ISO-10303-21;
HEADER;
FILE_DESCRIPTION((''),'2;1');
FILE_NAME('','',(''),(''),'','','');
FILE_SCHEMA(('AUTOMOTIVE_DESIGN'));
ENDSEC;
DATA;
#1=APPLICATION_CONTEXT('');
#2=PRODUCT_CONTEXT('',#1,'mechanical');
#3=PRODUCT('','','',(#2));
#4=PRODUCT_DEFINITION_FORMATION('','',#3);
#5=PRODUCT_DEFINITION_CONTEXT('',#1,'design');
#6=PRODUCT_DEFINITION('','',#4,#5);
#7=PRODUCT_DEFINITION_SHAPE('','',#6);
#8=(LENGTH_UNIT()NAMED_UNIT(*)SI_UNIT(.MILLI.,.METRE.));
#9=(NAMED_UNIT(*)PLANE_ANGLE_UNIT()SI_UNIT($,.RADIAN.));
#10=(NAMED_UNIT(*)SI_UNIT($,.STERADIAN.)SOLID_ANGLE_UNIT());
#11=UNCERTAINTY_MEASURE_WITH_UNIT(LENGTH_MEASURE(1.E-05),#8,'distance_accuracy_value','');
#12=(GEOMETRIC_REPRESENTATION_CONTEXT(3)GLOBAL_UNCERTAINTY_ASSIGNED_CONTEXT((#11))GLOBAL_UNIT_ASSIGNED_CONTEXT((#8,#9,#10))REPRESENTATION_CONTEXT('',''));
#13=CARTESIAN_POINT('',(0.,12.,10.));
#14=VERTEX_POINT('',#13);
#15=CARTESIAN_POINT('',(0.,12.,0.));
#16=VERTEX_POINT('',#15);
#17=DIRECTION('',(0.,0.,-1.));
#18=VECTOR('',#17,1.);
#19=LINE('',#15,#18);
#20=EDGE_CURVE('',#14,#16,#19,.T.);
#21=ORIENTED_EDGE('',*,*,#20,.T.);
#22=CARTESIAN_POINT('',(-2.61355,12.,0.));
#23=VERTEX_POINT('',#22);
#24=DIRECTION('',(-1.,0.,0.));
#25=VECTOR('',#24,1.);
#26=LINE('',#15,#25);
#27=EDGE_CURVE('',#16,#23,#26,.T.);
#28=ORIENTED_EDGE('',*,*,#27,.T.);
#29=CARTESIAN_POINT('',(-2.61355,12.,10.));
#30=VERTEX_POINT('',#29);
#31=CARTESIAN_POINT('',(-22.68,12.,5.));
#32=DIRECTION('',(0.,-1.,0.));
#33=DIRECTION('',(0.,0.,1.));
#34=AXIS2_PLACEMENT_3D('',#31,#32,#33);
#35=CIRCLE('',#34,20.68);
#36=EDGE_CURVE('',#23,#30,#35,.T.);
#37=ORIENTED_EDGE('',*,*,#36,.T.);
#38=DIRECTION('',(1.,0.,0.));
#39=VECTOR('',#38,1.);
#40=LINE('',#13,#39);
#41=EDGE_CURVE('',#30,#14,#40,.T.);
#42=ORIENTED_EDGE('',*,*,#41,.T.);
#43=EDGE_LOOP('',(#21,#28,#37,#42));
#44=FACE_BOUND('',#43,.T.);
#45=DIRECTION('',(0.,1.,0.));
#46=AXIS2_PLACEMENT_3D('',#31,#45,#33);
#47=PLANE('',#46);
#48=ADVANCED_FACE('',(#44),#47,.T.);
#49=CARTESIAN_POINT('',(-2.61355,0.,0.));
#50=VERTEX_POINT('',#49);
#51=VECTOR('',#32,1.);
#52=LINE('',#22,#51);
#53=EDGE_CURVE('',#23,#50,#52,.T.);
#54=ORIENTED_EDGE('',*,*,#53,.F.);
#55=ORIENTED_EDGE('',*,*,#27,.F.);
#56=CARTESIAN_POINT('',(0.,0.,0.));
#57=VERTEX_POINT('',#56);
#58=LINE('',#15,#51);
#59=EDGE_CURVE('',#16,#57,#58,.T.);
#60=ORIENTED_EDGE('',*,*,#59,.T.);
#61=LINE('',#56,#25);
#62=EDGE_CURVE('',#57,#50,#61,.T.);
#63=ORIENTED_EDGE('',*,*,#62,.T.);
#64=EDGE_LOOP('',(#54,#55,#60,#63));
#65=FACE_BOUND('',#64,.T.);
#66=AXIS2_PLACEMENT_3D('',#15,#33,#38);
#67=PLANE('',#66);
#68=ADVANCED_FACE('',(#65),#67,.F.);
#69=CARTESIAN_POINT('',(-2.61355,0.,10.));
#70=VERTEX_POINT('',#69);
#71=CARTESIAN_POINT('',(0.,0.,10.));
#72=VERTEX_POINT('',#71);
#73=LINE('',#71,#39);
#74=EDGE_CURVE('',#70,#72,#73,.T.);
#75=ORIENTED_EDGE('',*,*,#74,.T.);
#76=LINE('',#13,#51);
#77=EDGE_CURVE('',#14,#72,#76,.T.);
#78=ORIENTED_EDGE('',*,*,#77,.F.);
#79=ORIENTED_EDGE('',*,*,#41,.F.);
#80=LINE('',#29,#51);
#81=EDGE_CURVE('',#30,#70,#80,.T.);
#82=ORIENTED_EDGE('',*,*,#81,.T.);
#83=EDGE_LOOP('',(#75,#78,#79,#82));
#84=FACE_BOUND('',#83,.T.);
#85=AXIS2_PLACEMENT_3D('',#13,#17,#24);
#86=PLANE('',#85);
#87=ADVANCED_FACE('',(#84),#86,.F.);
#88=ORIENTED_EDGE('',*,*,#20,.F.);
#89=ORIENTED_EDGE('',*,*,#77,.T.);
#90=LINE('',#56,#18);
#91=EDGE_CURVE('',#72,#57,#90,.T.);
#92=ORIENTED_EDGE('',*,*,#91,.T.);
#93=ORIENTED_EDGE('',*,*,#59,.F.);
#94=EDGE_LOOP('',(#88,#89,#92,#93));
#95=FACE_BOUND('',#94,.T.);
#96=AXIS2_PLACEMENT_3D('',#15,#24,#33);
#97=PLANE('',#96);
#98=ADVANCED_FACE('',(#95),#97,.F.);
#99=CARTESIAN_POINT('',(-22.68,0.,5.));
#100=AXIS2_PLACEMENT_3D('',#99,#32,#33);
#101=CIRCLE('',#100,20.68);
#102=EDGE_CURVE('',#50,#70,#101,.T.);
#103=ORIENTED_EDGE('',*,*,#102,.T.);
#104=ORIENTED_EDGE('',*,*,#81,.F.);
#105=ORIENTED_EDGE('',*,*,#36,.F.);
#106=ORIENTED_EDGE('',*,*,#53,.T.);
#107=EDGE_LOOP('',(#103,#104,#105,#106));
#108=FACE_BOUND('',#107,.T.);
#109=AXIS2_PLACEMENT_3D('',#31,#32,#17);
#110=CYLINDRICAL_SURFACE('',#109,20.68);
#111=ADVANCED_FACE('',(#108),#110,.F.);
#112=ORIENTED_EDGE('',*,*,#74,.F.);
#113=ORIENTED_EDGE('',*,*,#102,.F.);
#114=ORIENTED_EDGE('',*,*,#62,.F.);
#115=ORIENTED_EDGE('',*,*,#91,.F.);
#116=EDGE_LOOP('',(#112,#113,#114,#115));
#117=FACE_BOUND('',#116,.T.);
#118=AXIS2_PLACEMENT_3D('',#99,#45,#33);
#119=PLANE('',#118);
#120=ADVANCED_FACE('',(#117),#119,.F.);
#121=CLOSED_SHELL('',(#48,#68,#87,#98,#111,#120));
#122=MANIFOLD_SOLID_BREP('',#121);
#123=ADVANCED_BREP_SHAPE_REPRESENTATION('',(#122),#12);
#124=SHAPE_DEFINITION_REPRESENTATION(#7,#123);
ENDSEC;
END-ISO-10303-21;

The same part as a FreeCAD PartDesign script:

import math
import FreeCAD as App
import Part
import Sketcher

doc = App.newDocument("Part")
body = doc.addObject("PartDesign::Body", "Body")

# Sketch on XZ plane
sketch1 = body.newObject("Sketcher::SketchObject", "Sketch")
sketch1.AttachmentSupport = (doc.getObject("XZ_Plane"), [""])
sketch1.MapMode = "FlatFace"
sketch1.addGeometry([
    Part.LineSegment(App.Vector(0, 10, 0), App.Vector(0, 0, 0)),
    Part.LineSegment(App.Vector(0, 0, 0), App.Vector(-2.6, 0, 0)),
    Part.ArcOfCircle(Part.Circle(App.Vector(-22.7, 5, 0), App.Vector(0, 0, 1), 20.7), math.radians(-14), math.radians(14)),
    Part.LineSegment(App.Vector(-2.6, 10, 0), App.Vector(0, 10, 0)),
], False)
sketch1.addConstraint([
    Sketcher.Constraint("Coincident", 0, 2, 1, 1),
    Sketcher.Constraint("Coincident", 1, 2, 2, 1),
    Sketcher.Constraint("Coincident", 2, 2, 3, 1),
    Sketcher.Constraint("Coincident", 3, 2, 0, 1),
    Sketcher.Constraint("Vertical", 0),
    Sketcher.Constraint("Horizontal", 1),
    Sketcher.Constraint("Horizontal", 3),
    Sketcher.Constraint("Coincident", 0, 2, -1, 1),
    Sketcher.Constraint("Vertical", 1, 2, 2, 2),
    Sketcher.Constraint("DistanceY", 0, 2, 0, 1, 10.0),
    Sketcher.Constraint("Radius", 2, 20.68),
    Sketcher.Constraint("DistanceX", 2, 3, -1, 1, 22.68),
])
pad1 = body.newObject("PartDesign::Pad", "Pad")
pad1.Profile = sketch1
pad1.Length = 12
pad1.Reversed = True

doc.recompute()
